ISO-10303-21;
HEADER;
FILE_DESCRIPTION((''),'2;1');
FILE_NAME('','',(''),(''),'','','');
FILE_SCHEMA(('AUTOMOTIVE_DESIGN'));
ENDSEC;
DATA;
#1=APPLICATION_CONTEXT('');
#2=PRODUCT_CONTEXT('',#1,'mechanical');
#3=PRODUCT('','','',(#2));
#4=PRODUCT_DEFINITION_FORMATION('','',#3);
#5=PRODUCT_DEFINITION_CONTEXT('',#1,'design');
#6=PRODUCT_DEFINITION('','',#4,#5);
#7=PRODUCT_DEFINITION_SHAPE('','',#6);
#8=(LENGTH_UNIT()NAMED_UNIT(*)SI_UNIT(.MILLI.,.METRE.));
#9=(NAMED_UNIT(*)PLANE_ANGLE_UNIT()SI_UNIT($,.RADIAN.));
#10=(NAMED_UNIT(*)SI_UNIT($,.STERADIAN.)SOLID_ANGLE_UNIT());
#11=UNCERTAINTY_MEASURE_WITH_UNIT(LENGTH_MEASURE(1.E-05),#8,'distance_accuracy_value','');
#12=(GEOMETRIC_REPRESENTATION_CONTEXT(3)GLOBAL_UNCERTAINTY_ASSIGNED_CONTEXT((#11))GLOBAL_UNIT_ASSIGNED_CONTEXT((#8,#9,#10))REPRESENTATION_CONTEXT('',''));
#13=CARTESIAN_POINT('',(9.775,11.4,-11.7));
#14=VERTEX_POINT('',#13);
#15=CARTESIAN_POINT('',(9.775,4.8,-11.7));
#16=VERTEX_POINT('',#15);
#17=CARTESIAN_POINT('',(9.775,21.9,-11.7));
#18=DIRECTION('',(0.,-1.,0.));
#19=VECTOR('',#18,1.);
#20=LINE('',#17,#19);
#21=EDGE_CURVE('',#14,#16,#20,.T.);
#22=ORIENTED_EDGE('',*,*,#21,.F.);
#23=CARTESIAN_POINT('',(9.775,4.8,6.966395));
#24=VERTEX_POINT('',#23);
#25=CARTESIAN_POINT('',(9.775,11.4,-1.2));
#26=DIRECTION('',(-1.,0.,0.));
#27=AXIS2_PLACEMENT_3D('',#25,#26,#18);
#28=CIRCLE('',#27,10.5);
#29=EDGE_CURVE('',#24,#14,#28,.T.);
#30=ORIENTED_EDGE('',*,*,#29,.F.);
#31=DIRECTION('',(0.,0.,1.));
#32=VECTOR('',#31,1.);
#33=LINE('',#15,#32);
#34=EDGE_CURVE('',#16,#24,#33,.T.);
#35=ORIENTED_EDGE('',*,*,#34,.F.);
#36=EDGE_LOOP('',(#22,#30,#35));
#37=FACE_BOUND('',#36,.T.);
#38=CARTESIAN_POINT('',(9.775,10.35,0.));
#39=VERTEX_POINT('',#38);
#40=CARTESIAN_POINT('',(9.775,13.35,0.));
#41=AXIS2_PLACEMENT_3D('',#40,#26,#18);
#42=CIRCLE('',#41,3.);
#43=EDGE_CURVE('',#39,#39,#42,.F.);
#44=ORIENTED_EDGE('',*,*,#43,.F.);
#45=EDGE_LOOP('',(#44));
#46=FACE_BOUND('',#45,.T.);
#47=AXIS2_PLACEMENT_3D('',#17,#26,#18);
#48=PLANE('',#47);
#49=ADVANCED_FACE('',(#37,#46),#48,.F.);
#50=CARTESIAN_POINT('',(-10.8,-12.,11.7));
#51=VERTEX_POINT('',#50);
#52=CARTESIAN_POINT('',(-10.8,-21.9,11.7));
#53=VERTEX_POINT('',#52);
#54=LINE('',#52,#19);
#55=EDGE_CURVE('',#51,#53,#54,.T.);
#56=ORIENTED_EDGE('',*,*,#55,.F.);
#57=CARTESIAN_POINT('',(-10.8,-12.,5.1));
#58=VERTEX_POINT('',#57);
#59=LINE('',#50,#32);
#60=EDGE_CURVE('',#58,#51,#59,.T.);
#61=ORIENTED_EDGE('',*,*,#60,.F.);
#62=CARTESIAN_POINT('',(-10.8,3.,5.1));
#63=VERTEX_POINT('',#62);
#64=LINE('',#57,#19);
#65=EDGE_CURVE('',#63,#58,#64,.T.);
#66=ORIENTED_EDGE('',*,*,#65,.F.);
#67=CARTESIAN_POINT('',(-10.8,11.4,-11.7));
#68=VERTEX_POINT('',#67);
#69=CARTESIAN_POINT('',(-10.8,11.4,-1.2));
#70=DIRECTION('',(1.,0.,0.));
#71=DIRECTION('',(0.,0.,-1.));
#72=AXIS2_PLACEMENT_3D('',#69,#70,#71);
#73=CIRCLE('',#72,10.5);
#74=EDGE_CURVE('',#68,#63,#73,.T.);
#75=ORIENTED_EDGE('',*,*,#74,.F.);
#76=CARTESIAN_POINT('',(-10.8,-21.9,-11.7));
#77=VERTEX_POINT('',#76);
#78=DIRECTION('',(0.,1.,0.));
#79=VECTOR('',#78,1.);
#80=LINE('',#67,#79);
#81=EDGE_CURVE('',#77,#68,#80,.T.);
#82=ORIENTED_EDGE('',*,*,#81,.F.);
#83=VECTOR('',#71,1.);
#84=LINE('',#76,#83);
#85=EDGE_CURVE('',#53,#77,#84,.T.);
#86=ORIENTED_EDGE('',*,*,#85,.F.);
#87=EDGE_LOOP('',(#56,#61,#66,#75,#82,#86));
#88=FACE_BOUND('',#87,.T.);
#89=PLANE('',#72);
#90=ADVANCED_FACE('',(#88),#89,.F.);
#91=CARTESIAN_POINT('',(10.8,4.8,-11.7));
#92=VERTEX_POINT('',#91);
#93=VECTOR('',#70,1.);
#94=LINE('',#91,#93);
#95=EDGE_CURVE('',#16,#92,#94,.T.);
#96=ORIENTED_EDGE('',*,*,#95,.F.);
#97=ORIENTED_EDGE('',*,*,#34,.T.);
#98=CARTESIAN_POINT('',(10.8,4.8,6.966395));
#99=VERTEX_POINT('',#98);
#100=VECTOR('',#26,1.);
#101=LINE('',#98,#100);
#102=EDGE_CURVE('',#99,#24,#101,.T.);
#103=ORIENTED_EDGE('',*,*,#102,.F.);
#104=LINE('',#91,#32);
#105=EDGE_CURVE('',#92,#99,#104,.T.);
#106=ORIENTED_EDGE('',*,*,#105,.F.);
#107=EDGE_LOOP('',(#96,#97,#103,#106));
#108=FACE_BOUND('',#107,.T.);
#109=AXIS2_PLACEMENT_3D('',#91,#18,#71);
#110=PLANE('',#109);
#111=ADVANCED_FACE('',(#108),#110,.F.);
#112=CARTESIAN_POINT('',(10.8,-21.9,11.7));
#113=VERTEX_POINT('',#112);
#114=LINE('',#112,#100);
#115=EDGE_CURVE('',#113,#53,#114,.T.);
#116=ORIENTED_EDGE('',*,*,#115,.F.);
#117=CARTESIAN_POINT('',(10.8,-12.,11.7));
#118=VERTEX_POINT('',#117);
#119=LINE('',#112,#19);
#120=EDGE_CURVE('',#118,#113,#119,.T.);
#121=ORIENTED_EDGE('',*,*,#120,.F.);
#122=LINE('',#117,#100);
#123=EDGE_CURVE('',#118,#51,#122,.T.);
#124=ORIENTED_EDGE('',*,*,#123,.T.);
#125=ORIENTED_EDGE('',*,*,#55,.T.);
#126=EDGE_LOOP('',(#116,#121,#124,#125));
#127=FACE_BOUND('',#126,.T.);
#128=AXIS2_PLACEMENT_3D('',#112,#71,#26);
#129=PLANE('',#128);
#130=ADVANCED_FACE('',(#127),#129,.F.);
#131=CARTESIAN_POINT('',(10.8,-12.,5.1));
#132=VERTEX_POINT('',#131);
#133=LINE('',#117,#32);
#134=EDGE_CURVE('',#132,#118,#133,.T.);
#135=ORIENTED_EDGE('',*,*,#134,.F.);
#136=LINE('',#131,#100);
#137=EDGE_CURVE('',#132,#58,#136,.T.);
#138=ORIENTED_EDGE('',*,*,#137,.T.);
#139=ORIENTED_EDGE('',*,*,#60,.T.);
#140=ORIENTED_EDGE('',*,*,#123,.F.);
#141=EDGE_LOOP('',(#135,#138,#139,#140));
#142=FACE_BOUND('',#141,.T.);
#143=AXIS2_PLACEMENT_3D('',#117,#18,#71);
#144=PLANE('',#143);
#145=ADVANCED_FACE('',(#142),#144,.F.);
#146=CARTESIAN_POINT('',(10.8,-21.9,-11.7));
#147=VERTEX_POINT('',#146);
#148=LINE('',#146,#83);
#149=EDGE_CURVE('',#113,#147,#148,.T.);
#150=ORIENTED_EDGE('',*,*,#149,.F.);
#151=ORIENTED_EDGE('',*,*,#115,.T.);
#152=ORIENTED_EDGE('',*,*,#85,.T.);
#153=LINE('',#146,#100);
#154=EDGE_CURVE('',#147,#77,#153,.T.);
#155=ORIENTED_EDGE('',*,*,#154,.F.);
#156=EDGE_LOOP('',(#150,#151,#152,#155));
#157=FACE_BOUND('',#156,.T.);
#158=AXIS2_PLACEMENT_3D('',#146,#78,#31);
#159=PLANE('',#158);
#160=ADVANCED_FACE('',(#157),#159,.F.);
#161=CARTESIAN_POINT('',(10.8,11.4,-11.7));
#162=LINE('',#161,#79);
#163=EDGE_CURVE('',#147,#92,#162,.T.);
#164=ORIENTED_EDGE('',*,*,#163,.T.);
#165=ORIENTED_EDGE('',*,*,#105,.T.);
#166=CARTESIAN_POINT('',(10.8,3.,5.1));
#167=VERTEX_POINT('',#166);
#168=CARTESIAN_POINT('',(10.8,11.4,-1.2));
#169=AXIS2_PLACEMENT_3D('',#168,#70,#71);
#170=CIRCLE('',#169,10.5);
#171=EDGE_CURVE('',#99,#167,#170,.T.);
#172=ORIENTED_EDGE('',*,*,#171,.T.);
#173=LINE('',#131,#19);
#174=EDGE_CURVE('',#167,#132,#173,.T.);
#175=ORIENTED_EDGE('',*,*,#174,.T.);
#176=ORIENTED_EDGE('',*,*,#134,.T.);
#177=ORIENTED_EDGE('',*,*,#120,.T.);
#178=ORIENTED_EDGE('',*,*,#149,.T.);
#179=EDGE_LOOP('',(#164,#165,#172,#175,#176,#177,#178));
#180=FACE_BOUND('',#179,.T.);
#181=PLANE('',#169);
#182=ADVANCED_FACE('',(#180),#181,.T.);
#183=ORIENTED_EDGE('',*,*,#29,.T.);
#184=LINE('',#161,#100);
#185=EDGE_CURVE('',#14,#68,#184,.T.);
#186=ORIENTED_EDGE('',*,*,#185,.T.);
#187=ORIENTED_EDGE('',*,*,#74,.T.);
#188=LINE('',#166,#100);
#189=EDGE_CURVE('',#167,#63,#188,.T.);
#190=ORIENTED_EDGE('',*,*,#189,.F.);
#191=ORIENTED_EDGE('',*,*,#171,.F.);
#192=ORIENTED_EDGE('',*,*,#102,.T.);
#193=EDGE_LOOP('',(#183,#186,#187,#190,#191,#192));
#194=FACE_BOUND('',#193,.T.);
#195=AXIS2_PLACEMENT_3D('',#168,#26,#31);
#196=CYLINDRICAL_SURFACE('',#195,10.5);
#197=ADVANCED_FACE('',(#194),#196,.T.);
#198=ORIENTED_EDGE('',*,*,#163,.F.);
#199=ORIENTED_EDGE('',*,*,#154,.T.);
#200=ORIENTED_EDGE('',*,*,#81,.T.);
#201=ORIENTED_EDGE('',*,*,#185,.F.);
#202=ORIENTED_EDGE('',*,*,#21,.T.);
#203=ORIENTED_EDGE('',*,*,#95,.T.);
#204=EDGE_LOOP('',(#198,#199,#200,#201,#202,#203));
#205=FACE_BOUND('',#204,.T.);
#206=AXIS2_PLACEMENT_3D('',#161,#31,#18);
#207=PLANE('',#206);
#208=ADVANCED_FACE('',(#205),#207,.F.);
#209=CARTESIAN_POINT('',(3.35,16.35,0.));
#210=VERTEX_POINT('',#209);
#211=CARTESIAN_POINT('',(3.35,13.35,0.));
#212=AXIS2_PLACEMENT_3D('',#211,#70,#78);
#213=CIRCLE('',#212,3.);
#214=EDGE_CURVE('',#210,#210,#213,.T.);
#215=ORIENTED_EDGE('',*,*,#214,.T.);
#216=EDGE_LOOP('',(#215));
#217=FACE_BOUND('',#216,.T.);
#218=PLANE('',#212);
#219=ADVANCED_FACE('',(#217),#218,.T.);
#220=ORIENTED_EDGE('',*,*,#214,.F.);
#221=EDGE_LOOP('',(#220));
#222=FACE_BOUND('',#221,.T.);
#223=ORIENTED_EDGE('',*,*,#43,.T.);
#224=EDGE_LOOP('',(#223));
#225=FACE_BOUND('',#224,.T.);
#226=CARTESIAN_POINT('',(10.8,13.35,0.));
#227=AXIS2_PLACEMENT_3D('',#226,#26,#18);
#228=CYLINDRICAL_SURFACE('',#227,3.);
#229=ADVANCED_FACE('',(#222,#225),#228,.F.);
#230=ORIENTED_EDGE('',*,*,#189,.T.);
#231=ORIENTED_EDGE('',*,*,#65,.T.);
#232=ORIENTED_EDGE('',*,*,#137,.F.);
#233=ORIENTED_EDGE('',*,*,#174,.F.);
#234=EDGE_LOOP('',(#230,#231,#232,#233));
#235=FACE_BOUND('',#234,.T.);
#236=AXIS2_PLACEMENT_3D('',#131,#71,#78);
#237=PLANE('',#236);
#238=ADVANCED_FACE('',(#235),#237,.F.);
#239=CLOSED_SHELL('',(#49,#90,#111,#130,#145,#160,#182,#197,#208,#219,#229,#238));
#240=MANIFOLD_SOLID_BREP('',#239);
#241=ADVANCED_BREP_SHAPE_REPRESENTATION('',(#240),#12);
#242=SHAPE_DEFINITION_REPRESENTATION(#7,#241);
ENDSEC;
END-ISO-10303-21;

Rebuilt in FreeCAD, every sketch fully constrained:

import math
import FreeCAD as App
import Part
import Sketcher
from FreeCAD import Vector
Q = App.Units.Quantity

doc = App.newDocument("Part")
params = doc.addObject("Spreadsheet::Sheet", "Params")
for row, (alias, value) in enumerate([
    ("sketch1_radius", "10.5 mm"),
    ("sketch1_width", "15 mm"),
    ("sketch1_width2", "33.3 mm"),
    ("sketch1_width3", "9.9 mm"),
    ("sketch1_height", "6.6 mm"),
    ("pad1_length", "21.6 mm"),
    ("sketch2_height", "17.1 mm"),
    ("sketch3_diameter", "6 mm"),
    ("pocket2_length", "33.246405 mm"),
    ("pocket2_length2", "6.425 mm"),
], start=1):
    params.set(f"A{row}", alias)
    params.set(f"B{row}", "=" + value)
    params.setAlias(f"B{row}", alias)

body = doc.addObject("PartDesign::Body", "Body")

# Sketch on YZ plane
sketch1 = body.newObject("Sketcher::SketchObject", "Sketch")
sketch1.AttachmentSupport = (doc.getObject("YZ_Plane"), [""])
sketch1.MapMode = "FlatFace"
sketch1.addGeometry([
    Part.LineSegment(Vector(-22, -12, 0), Vector(11, -12, 0)),  # 0
    Part.ArcOfCircle(Part.Circle(Vector(11, -1, 0), Vector(0, 0, 1), 10), math.radians(-90), math.radians(143)),  # 1
    Part.LineSegment(Vector(3, 5, 0), Vector(-12, 5, 0)),  # 2
    Part.LineSegment(Vector(-12, 5, 0), Vector(-12, 12, 0)),  # 3
    Part.LineSegment(Vector(-12, 12, 0), Vector(-22, 12, 0)),  # 4
    Part.LineSegment(Vector(-22, 12, 0), Vector(-22, -12, 0)),  # 5
], False)
sketch1.addConstraint([
    Sketcher.Constraint("Tangent", 0, 2, 1, 1),
    Sketcher.Constraint("Coincident", 1, 2, 2, 1),
    Sketcher.Constraint("Coincident", 2, 2, 3, 1),
    Sketcher.Constraint("Coincident", 3, 2, 4, 1),
    Sketcher.Constraint("Coincident", 4, 2, 5, 1),
    Sketcher.Constraint("Coincident", 5, 2, 0, 1),
    Sketcher.Constraint("Horizontal", 0),
    Sketcher.Constraint("Horizontal", 2),
    Sketcher.Constraint("Vertical", 3),
    Sketcher.Constraint("Horizontal", 4),
    Sketcher.Constraint("Vertical", 5),
    Sketcher.Constraint("Radius", 1, Q("10.5 mm")),
    Sketcher.Constraint("DistanceX", 2, 2, 2, 1, Q("15 mm")),
    Sketcher.Constraint("DistanceX", 0, 1, 0, 2, Q("33.3 mm")),
    Sketcher.Constraint("DistanceX", 4, 2, 4, 1, Q("9.9 mm")),
    Sketcher.Constraint("DistanceY", 3, 1, 3, 2, Q("6.6 mm")),
    Sketcher.Constraint("DistanceX", -1, 1, 1, 2, Q("3 mm")),
    Sketcher.Constraint("DistanceY", 1, 3, -1, 1, Q("1.2 mm")),
])
sketch1.setExpression("Constraints[11]", "Params.sketch1_radius")
sketch1.setExpression("Constraints[12]", "Params.sketch1_width")
sketch1.setExpression("Constraints[13]", "Params.sketch1_width2")
sketch1.setExpression("Constraints[14]", "Params.sketch1_width3")
sketch1.setExpression("Constraints[15]", "Params.sketch1_height")
pad1 = body.newObject("PartDesign::Pad", "Pad")
pad1.Profile = sketch1
pad1.setExpression("Length", "Params.pad1_length")
pad1.Midplane = True

# Sketch on XY plane
sketch2 = body.newObject("Sketcher::SketchObject", "Sketch001")
sketch2.AttachmentSupport = (doc.getObject("XY_Plane"), [""])
sketch2.MapMode = "FlatFace"
sketch2.addGeometry([
    Part.LineSegment(Vector(9.8, 21.9, 0), Vector(9.8, 4.8, 0)),
    Part.LineSegment(Vector(9.8, 4.8, 0), Vector(10.8, 4.8, 0)),
    Part.LineSegment(Vector(10.8, 4.8, 0), Vector(10.8, 21.9, 0)),
    Part.LineSegment(Vector(10.8, 21.9, 0), Vector(9.8, 21.9, 0)),
], False)
sketch2.addConstraint([
    Sketcher.Constraint("Coincident", 0, 2, 1, 1),
    Sketcher.Constraint("Coincident", 1, 2, 2, 1),
    Sketcher.Constraint("Coincident", 2, 2, 3, 1),
    Sketcher.Constraint("Coincident", 3, 2, 0, 1),
    Sketcher.Constraint("Vertical", 0),
    Sketcher.Constraint("Horizontal", 1),
    Sketcher.Constraint("Vertical", 2),
    Sketcher.Constraint("Horizontal", 3),
    Sketcher.Constraint("DistanceY", 0, 2, 0, 1, Q("17.1 mm")),
    Sketcher.Constraint("DistanceY", -1, 1, 0, 2, Q("4.8 mm")),
    Sketcher.Constraint("DistanceX", -1, 1, 1, 2, Q("10.8 mm")),
    Sketcher.Constraint("DistanceX", 1, 1, 1, 2, Q("1.025 mm")),
])
sketch2.setExpression("Constraints[8]", "Params.sketch2_height")
pocket1 = body.newObject("PartDesign::Pocket", "Pocket")
pocket1.Profile = sketch2
pocket1.Type = "ThroughAll"
pocket1.Midplane = True

# Sketch on YZ plane
sketch3 = body.newObject("Sketcher::SketchObject", "Sketch002")
sketch3.AttachmentSupport = (doc.getObject("YZ_Plane"), [""])
sketch3.MapMode = "FlatFace"
sketch3.AttachmentOffset = App.Placement(Vector(0, 0, 9.775), App.Rotation())
sketch3.addGeometry(Part.Circle(Vector(13.3, 0, 0), Vector(0, 0, 1), 3), False)
sketch3.addConstraint([
    Sketcher.Constraint("PointOnObject", 0, 3, -1),
    Sketcher.Constraint("Diameter", 0, Q("6 mm")),
    Sketcher.Constraint("DistanceX", -1, 1, 0, 3, Q("13.35 mm")),
])
sketch3.setExpression("Constraints[1]", "Params.sketch3_diameter")
pocket2 = body.newObject("PartDesign::Pocket", "Pocket001")
pocket2.Profile = sketch3
pocket2.Type = "TwoLengths"
pocket2.setExpression("Length", "Params.pocket2_length")
pocket2.setExpression("Length2", "Params.pocket2_length2")
pocket2.Reversed = True

doc.recompute()
